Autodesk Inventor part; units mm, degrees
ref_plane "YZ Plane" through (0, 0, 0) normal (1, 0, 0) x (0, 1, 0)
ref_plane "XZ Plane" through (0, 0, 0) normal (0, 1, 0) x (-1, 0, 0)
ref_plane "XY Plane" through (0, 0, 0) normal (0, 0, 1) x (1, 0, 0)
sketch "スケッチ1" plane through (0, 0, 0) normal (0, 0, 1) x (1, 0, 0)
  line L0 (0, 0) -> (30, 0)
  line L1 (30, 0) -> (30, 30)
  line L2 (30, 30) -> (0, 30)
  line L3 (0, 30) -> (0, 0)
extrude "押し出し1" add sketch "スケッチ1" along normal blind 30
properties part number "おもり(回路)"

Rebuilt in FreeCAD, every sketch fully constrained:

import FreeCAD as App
import Part
import Sketcher

V = App.Vector
Q = App.Units.Quantity

doc = App.newDocument("Part")
body = doc.addObject("PartDesign::Body", "Body")

# Sketch on XY plane
sketch1 = body.newObject("Sketcher::SketchObject", "Sketch")
sketch1.AttachmentSupport = (doc.getObject("XY_Plane"), [""])
sketch1.MapMode = "FlatFace"
sketch1.addGeometry([
    Part.LineSegment(V(0, 30, 0), V(0, 0, 0)),
    Part.LineSegment(V(0, 0, 0), V(30, 0, 0)),
    Part.LineSegment(V(30, 0, 0), V(30, 30, 0)),
    Part.LineSegment(V(30, 30, 0), V(0, 30, 0)),
], False)
sketch1.addConstraint([
    Sketcher.Constraint("Coincident", 0, 2, 1, 1),
    Sketcher.Constraint("Coincident", 1, 2, 2, 1),
    Sketcher.Constraint("Coincident", 2, 2, 3, 1),
    Sketcher.Constraint("Coincident", 3, 2, 0, 1),
    Sketcher.Constraint("Vertical", 0),
    Sketcher.Constraint("Horizontal", 1),
    Sketcher.Constraint("Vertical", 2),
    Sketcher.Constraint("Horizontal", 3),
    Sketcher.Constraint("Coincident", 0, 2, -1, 1),
    Sketcher.Constraint("Equal", 3, 0),
    Sketcher.Constraint("DistanceX", 1, 1, 1, 2, Q("30 mm")),
])
pad1 = body.newObject("PartDesign::Pad", "Pad")
pad1.Profile = sketch1
pad1.Length = 30

doc.recompute()
